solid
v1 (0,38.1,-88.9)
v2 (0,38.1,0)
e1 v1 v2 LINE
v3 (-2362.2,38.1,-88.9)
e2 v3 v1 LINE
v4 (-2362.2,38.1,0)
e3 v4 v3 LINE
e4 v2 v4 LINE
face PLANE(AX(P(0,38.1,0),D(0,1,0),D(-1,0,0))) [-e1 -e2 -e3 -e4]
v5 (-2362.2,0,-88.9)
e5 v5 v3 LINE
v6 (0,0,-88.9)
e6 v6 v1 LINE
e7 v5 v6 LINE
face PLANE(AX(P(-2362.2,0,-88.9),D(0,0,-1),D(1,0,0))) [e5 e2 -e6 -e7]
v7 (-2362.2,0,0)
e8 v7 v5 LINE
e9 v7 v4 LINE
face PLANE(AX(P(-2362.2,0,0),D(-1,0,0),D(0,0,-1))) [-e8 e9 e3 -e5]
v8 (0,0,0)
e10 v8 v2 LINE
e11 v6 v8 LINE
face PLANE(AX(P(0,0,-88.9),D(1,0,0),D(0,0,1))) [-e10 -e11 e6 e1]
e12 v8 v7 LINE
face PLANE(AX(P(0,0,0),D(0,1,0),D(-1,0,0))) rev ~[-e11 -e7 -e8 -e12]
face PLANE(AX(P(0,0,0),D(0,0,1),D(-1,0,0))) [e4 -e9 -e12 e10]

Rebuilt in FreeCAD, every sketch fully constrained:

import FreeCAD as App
import Part
import Sketcher
Q = App.Units.Quantity

doc = App.newDocument("Part")
params = doc.addObject("Spreadsheet::Sheet", "Params")
for row, (alias, value) in enumerate([
    ("sketch1_width", "93 in"),
    ("sketch1_height", "3.5 in"),
    ("pad1_length", "1.5 in"),
], start=1):
    params.set(f"A{row}", alias)
    params.set(f"B{row}", "=" + value)
    params.setAlias(f"B{row}", alias)

body = doc.addObject("PartDesign::Body", "Body")

# Sketch on XZ plane
sketch1 = doc.addObject("Sketcher::SketchObject", "Sketch")
body.addObject(sketch1)
sketch1.AttachmentSupport = (doc.XZ_Plane, [""])
sketch1.MapMode = "FlatFace"
sketch1.addGeometry([
    Part.LineSegment(App.Vector(-2362, 0, 0), App.Vector(0, 0, 0)),
    Part.LineSegment(App.Vector(0, 0, 0), App.Vector(0, -89, 0)),
    Part.LineSegment(App.Vector(0, -89, 0), App.Vector(-2362, -89, 0)),
    Part.LineSegment(App.Vector(-2362, -89, 0), App.Vector(-2362, 0, 0)),
], False)
sketch1.addConstraint([
    Sketcher.Constraint("Coincident", 0, 2, 1, 1),
    Sketcher.Constraint("Coincident", 1, 2, 2, 1),
    Sketcher.Constraint("Coincident", 2, 2, 3, 1),
    Sketcher.Constraint("Coincident", 3, 2, 0, 1),
    Sketcher.Constraint("Horizontal", 0),
    Sketcher.Constraint("Vertical", 1),
    Sketcher.Constraint("Horizontal", 2),
    Sketcher.Constraint("Vertical", 3),
    Sketcher.Constraint("Coincident", 0, 2, -1, 1),
    Sketcher.Constraint("DistanceX", 0, 1, 0, 2, Q("93 in")),
    Sketcher.Constraint("DistanceY", 1, 2, 1, 1, Q("3.5 in")),
])
sketch1.setExpression("Constraints[9]", "Params.sketch1_width")
sketch1.setExpression("Constraints[10]", "Params.sketch1_height")
pad1 = doc.addObject("PartDesign::Pad", "Pad")
body.addObject(pad1)
pad1.Profile = sketch1
pad1.setExpression("Length", "Params.pad1_length")
pad1.Reversed = True

doc.recompute()
